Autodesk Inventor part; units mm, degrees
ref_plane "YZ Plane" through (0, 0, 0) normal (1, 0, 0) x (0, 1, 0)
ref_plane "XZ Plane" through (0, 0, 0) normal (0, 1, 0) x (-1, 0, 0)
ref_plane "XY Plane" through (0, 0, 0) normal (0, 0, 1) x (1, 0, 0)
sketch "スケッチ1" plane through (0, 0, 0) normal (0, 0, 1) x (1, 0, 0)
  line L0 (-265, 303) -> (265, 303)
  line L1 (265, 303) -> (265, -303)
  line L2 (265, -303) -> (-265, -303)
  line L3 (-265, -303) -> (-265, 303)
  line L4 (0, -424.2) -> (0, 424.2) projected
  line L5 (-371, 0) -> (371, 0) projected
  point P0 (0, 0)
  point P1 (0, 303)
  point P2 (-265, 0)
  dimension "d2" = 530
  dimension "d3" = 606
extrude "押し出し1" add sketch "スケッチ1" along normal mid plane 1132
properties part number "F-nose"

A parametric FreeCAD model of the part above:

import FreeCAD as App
import Part
import Sketcher

V = App.Vector


def add_polygon(sketch, points):
    """Adds a closed chain of lines whose ends are joined by coincident constraints."""
    first, n = sketch.GeometryCount, len(points)
    for a, b in zip(points, points[1:] + points[:1]):
        sketch.addGeometry(Part.LineSegment(App.Vector(*a, 0), App.Vector(*b, 0)), False)
    for i in range(n):
        sketch.addConstraint(Sketcher.Constraint("Coincident", first + i, 2, first + (i + 1) % n, 1))

doc = App.newDocument("Part")
body = doc.addObject("PartDesign::Body", "Body")

# Sketch on XY plane
sketch1 = body.newObject("Sketcher::SketchObject", "Sketch")
sketch1.AttachmentSupport = (doc.getObject("XY_Plane"), [""])
sketch1.MapMode = "FlatFace"
add_polygon(sketch1, [(-265, 303), (-265, -303), (265, -303), (265, 303)])  # lines 0-3
sketch1.addConstraint(Sketcher.Constraint("Vertical", 0))
sketch1.addConstraint(Sketcher.Constraint("Horizontal", 1))
sketch1.addConstraint(Sketcher.Constraint("Vertical", 2))
sketch1.addConstraint(Sketcher.Constraint("Horizontal", 3))
sketch1.addConstraint(Sketcher.Constraint("Symmetric", 0, 2, 2, 2, -1, 1))
sketch1.addConstraint(Sketcher.Constraint("DistanceX", 1, 1, 1, 2, 530.0))
sketch1.addConstraint(Sketcher.Constraint("DistanceY", 0, 2, 0, 1, 606.0))
pad1 = body.newObject("PartDesign::Pad", "Pad")
pad1.Profile = sketch1
pad1.Length = 1132
pad1.Midplane = True

doc.recompute()
